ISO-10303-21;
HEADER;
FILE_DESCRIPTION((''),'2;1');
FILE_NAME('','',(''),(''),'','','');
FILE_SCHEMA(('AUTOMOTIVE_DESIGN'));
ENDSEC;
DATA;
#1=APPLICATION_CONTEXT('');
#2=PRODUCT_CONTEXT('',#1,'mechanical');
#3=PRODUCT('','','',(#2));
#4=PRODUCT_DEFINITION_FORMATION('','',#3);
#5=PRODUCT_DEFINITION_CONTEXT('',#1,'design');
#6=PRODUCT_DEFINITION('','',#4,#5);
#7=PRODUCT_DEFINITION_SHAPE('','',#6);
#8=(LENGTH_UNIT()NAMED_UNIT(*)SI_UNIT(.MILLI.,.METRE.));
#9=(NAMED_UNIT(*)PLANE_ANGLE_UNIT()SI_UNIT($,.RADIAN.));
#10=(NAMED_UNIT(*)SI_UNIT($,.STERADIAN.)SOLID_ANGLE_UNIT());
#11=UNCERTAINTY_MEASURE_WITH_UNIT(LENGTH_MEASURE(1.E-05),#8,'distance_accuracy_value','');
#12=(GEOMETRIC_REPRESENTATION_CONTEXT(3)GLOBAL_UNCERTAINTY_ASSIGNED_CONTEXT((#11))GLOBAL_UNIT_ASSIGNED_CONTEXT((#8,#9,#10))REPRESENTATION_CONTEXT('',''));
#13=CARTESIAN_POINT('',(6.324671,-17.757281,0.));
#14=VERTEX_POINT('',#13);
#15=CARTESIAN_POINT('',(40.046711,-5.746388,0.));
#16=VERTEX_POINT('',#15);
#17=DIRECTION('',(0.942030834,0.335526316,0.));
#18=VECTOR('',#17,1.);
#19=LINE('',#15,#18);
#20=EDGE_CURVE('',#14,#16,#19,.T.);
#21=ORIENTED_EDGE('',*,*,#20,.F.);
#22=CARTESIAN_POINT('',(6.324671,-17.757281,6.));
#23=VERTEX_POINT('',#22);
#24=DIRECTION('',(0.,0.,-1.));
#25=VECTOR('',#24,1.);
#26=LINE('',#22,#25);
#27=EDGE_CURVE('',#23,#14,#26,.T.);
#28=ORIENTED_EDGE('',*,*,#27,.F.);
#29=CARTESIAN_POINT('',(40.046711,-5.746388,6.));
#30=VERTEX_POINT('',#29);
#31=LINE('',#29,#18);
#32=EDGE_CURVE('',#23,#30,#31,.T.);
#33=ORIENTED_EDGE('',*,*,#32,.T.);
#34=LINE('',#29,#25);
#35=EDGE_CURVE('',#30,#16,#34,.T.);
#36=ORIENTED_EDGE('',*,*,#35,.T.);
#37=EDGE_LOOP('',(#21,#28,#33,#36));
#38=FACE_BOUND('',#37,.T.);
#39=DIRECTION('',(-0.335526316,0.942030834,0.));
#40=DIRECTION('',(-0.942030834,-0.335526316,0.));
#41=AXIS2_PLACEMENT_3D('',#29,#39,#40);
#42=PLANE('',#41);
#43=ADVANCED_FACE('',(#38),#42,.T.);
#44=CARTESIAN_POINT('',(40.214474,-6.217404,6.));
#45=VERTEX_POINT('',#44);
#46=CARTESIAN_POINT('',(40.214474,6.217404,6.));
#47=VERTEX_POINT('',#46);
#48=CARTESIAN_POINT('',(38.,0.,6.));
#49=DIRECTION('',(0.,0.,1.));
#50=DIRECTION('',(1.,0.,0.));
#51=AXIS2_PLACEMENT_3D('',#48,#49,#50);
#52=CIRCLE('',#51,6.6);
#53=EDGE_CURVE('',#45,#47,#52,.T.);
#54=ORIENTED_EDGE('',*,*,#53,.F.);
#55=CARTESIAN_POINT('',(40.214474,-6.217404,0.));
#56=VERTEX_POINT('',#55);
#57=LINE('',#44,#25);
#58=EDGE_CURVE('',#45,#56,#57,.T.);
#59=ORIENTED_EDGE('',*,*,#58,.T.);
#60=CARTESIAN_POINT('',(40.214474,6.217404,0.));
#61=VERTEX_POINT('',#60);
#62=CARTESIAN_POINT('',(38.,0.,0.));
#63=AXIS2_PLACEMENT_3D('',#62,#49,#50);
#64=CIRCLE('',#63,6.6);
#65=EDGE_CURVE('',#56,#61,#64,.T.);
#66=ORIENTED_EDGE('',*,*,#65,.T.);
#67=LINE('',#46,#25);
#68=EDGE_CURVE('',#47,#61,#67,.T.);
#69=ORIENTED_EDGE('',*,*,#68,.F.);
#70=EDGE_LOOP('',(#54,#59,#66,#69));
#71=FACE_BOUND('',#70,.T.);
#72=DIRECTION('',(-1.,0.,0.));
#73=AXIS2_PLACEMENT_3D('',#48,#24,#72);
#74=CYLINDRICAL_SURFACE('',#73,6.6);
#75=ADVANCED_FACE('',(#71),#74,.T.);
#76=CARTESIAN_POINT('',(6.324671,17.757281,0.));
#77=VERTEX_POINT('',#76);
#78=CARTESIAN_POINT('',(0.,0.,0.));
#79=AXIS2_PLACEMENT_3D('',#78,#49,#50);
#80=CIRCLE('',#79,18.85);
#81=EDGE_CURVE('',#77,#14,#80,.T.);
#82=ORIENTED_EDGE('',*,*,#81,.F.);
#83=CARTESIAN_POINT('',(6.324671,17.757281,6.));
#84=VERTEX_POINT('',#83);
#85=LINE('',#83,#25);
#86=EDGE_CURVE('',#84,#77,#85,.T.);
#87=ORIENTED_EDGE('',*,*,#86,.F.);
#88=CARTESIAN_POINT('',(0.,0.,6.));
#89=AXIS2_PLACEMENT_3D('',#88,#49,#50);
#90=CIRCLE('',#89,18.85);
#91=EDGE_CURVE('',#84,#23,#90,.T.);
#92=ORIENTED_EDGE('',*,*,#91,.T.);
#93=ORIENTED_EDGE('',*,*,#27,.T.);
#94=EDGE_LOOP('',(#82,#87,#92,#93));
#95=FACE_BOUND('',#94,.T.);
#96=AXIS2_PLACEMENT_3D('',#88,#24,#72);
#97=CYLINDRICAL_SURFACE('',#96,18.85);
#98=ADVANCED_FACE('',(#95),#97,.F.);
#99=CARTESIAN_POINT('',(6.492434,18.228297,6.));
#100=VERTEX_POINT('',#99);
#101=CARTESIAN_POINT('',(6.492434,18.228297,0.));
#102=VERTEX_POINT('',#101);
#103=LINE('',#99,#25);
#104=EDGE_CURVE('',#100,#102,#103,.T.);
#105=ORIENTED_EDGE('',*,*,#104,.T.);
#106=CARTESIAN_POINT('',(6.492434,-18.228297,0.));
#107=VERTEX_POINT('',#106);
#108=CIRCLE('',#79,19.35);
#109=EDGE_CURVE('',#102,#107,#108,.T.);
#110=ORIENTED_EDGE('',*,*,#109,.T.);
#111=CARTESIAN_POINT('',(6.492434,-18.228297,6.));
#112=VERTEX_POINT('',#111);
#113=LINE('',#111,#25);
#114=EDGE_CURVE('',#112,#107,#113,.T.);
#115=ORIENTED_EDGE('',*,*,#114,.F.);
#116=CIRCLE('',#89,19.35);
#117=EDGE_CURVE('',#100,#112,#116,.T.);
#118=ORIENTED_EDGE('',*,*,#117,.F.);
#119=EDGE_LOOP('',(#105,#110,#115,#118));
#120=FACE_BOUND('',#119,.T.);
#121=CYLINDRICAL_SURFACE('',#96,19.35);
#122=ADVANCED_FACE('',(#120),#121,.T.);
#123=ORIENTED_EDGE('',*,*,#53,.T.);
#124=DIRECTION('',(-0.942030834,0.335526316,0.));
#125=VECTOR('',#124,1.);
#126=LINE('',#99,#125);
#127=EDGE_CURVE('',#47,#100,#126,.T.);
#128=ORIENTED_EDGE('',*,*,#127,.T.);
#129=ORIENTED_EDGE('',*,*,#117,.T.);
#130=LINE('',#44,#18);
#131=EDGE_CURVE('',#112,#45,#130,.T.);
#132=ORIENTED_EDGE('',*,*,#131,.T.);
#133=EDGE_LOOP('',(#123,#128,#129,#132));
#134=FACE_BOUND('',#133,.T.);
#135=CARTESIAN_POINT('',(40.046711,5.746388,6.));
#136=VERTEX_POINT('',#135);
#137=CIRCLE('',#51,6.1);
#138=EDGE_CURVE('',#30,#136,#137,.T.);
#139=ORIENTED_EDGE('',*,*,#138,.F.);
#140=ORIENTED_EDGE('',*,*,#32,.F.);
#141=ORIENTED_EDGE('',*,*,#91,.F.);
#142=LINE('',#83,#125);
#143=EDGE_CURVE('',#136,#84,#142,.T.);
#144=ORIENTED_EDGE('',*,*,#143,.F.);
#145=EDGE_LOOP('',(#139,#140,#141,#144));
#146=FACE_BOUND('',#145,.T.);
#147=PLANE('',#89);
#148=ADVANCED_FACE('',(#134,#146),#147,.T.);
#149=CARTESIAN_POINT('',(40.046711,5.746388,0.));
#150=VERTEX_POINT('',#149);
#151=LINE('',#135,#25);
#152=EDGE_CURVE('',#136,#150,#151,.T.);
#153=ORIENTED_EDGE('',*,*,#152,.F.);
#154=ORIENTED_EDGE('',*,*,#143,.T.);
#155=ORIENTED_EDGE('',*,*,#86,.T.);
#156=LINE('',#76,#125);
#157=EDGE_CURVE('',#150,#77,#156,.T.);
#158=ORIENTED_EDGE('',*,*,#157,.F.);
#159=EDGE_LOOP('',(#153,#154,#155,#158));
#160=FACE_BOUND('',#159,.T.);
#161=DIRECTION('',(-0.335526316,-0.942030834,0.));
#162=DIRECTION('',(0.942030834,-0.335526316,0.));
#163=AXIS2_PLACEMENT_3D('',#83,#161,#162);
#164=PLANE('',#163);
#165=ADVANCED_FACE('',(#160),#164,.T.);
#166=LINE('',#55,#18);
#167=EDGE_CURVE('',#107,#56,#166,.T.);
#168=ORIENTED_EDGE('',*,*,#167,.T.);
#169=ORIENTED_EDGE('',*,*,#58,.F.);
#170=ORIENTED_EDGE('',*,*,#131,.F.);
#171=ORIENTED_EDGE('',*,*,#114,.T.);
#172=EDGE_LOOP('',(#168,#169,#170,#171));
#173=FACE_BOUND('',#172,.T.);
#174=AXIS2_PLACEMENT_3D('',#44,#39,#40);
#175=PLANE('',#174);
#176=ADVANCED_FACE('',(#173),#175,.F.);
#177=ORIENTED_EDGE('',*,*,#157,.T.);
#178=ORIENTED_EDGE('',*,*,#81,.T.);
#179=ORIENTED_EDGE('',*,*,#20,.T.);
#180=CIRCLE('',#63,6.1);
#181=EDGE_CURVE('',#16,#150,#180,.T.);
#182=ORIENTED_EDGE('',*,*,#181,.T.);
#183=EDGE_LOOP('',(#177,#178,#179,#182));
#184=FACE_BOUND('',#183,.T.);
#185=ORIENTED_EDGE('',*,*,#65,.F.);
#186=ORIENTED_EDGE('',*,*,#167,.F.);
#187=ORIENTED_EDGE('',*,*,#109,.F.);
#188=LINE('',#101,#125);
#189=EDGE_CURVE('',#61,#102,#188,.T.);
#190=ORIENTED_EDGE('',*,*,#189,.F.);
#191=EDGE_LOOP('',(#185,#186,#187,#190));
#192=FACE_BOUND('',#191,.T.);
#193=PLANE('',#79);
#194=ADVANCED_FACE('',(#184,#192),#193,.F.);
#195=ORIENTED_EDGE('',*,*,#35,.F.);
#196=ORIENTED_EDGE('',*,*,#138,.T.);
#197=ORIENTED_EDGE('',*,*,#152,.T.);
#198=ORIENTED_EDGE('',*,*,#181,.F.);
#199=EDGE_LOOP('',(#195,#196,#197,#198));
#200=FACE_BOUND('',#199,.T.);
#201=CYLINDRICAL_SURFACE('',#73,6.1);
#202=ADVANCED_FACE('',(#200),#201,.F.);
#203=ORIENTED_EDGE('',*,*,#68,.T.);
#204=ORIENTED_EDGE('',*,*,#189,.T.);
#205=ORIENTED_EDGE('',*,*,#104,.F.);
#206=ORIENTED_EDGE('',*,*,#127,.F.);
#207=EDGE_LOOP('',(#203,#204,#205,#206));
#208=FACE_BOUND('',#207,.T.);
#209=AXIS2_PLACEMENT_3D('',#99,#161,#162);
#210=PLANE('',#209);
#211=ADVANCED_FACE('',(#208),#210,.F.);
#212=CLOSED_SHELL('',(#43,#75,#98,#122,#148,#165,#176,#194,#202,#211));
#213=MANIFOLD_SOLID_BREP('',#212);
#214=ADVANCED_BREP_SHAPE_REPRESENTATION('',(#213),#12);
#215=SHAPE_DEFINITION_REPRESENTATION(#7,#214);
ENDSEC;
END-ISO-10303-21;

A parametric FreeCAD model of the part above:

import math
import FreeCAD as App
import Part
import Sketcher

V = App.Vector

doc = App.newDocument("Part")
body = doc.addObject("PartDesign::Body", "Body")

sketch1 = doc.addObject("Sketcher::SketchObject", "Sketch")
body.addObject(sketch1)
sketch1.AttachmentSupport = (doc.XY_Plane, [""])
sketch1.MapMode = "FlatFace"
sketch1.addGeometry(Part.LineSegment(V(6, -18, 0), V(40, -6, 0)), False)
sketch1.addGeometry(Part.ArcOfCircle(Part.Circle(V(38, 0, 0), V(0, 0, 1), 7), math.radians(-70), math.radians(70)), False)
sketch1.addGeometry(Part.LineSegment(V(40, 6, 0), V(6, 18, 0)), False)
sketch1.addGeometry(Part.ArcOfCircle(Part.Circle(V(0, 0, 0), V(0, 0, 1), 19), math.radians(70), math.radians(290)), False)
sketch1.addGeometry(Part.LineSegment(V(6, 18, 0), V(40, 6, 0)), False)
sketch1.addGeometry(Part.ArcOfCircle(Part.Circle(V(38, 0, 0), V(0, 0, 1), 6), math.radians(-70), math.radians(70)), False)
sketch1.addGeometry(Part.LineSegment(V(40, -6, 0), V(6, -18, 0)), False)
sketch1.addGeometry(Part.ArcOfCircle(Part.Circle(V(0, 0, 0), V(0, 0, 1), 19), math.radians(70), math.radians(290)), False)
sketch1.addConstraint(Sketcher.Constraint("Tangent", 0, 2, 1, 1))
sketch1.addConstraint(Sketcher.Constraint("Tangent", 1, 2, 2, 1))
sketch1.addConstraint(Sketcher.Constraint("Tangent", 2, 2, 3, 1))
sketch1.addConstraint(Sketcher.Constraint("Tangent", 3, 2, 0, 1))
sketch1.addConstraint(Sketcher.Constraint("Tangent", 4, 2, 5, 2))
sketch1.addConstraint(Sketcher.Constraint("Tangent", 5, 1, 6, 1))
sketch1.addConstraint(Sketcher.Constraint("Tangent", 6, 2, 7, 2))
sketch1.addConstraint(Sketcher.Constraint("Tangent", 7, 1, 4, 1))
sketch1.addConstraint(Sketcher.Constraint("Coincident", 3, 3, -1, 1))
sketch1.addConstraint(Sketcher.Constraint("Coincident", 7, 3, -1, 1))
sketch1.addConstraint(Sketcher.Constraint("Coincident", 5, 3, 1, 3))
sketch1.addConstraint(Sketcher.Constraint("PointOnObject", 1, 3, -1))
sketch1.addConstraint(Sketcher.Constraint("Parallel", 2, 4))
sketch1.addConstraint(Sketcher.Constraint("Radius", 1, 6.6))
sketch1.addConstraint(Sketcher.Constraint("Radius", 5, 6.1))
sketch1.addConstraint(Sketcher.Constraint("Radius", 3, 19.35))
sketch1.addConstraint(Sketcher.Constraint("DistanceX", -1, 1, 1, 3, 38.0))
pad1 = doc.addObject("PartDesign::Pad", "Pad")
body.addObject(pad1)
pad1.Profile = sketch1
pad1.Length = 6

doc.recompute()
